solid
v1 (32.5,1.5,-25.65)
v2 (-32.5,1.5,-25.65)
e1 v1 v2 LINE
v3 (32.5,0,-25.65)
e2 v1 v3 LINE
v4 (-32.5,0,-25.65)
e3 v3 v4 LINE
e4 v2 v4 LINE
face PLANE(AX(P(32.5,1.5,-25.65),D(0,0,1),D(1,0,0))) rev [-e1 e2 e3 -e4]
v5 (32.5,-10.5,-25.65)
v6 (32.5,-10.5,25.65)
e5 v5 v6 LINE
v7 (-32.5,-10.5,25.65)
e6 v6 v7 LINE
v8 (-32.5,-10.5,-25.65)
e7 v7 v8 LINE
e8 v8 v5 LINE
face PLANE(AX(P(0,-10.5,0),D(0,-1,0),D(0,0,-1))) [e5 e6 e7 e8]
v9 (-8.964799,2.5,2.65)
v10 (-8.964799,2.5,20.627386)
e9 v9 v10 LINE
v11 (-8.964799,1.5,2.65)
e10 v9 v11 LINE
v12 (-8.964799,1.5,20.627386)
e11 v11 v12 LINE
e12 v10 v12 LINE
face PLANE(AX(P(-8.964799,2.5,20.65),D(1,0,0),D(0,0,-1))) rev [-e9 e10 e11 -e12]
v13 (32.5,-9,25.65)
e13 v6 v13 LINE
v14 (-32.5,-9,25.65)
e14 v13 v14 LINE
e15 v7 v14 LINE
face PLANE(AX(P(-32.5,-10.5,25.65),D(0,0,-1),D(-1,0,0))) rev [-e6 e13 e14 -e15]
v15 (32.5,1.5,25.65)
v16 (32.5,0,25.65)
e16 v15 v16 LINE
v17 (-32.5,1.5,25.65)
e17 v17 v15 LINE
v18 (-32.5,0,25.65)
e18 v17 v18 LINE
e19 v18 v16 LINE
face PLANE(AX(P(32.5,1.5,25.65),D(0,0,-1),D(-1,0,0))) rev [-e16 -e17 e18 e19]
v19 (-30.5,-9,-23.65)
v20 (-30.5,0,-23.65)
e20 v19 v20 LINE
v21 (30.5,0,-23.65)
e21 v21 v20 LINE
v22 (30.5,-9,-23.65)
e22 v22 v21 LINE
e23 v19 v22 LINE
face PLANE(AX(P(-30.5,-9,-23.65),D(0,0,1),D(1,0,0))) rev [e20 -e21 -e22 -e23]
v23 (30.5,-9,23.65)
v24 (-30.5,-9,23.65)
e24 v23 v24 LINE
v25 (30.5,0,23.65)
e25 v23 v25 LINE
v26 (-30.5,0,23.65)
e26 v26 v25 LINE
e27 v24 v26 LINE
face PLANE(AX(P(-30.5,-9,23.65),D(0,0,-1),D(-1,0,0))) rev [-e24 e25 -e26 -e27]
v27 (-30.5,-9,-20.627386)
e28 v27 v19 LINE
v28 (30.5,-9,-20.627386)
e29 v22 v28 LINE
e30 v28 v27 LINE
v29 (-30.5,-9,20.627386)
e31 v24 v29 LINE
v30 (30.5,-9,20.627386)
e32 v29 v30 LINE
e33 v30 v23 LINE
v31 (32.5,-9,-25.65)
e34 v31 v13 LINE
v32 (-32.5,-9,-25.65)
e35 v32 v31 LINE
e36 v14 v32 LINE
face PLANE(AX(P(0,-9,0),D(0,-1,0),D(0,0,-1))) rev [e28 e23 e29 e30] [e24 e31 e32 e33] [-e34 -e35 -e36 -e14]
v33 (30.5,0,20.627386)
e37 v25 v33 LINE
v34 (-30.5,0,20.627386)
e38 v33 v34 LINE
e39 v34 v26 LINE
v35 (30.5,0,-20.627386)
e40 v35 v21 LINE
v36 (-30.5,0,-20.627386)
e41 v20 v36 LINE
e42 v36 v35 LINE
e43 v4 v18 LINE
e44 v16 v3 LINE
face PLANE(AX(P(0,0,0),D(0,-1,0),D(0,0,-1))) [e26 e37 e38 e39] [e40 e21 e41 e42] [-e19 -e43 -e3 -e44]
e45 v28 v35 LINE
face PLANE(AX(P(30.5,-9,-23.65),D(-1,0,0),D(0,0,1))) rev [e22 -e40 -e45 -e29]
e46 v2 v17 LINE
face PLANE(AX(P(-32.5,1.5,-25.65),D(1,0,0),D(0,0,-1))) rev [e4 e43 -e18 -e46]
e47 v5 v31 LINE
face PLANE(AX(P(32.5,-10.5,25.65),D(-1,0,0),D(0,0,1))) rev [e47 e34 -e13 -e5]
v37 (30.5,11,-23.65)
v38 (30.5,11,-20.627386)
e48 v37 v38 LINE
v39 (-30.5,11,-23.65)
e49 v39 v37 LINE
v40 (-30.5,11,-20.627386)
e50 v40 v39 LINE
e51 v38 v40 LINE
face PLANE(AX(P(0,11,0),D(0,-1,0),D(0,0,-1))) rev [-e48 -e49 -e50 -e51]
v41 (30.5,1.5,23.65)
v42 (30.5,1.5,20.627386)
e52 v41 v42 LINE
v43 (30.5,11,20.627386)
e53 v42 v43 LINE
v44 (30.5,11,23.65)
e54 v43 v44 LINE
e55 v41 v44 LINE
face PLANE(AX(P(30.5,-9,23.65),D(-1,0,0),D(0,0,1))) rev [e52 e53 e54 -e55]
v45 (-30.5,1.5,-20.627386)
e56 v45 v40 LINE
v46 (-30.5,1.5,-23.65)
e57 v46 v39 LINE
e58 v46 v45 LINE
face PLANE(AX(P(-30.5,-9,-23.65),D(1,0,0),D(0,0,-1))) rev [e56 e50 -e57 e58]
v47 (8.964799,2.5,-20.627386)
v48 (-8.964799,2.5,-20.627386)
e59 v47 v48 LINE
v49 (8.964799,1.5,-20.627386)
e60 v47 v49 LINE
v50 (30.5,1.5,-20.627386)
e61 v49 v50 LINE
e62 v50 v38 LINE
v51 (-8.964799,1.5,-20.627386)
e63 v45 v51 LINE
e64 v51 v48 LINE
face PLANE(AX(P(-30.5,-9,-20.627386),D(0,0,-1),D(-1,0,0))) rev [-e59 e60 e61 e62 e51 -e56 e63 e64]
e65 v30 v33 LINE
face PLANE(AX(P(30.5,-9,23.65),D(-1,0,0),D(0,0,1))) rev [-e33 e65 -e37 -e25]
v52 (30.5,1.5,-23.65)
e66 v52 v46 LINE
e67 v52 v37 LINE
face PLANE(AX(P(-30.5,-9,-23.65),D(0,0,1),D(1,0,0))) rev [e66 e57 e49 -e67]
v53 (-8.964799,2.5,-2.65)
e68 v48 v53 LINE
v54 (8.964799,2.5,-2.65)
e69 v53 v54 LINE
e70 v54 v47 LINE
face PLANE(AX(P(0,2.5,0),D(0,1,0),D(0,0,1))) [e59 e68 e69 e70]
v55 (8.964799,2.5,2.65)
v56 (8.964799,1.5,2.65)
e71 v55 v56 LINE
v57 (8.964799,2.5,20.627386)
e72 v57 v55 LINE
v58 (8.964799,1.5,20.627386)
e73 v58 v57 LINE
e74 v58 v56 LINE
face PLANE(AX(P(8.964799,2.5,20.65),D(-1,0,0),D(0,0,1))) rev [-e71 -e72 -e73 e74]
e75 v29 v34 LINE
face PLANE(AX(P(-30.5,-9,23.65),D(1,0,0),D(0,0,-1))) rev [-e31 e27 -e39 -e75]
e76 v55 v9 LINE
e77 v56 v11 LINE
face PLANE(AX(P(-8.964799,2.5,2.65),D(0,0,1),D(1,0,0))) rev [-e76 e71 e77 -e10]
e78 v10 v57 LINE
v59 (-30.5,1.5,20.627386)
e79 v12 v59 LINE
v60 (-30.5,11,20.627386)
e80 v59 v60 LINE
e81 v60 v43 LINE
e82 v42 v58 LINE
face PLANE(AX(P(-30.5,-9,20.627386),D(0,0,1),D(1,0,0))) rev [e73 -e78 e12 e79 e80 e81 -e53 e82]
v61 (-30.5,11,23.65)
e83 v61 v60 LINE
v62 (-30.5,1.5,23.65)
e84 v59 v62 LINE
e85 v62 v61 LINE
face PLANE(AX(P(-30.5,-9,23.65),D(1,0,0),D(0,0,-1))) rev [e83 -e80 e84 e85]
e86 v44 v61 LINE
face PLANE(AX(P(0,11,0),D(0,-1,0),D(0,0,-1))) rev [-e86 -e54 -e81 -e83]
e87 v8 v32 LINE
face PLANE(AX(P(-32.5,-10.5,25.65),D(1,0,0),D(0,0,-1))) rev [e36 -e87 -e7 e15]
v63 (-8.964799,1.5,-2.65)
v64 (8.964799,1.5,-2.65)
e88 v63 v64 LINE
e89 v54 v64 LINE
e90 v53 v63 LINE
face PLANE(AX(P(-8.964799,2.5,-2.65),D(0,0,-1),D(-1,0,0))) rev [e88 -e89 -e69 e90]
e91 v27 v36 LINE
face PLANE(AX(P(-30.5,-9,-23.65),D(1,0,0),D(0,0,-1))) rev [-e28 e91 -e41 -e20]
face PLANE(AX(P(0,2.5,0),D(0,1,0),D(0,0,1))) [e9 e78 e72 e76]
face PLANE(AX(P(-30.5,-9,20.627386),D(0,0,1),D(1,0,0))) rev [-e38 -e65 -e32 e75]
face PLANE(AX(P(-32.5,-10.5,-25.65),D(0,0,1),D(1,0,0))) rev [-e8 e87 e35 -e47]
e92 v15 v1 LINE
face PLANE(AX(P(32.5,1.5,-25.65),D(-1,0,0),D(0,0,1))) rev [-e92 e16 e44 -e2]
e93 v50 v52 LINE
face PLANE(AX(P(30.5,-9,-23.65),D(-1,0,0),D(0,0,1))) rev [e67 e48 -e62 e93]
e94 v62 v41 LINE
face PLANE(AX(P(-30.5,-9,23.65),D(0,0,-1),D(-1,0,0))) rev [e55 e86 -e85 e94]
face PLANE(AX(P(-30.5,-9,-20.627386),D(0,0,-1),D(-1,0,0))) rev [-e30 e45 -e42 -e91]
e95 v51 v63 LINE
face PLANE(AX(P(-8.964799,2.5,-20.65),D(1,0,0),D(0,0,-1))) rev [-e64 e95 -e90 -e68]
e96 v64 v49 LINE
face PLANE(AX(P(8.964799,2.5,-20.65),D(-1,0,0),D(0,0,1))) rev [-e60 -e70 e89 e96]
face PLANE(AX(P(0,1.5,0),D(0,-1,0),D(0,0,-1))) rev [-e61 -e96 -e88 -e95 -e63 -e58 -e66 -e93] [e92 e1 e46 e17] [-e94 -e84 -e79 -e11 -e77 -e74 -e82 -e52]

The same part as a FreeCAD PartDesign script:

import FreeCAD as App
import Part
import Sketcher
from FreeCAD import Vector
Q = App.Units.Quantity

doc = App.newDocument("Part")
params = doc.addObject("Spreadsheet::Sheet", "Params")
for row, (alias, value) in enumerate([
    ("sketch1_width", "65 mm"),
    ("sketch1_height", "51.3 mm"),
    ("pad1_length", "1.5 mm"),
    ("sketch2_height", "18 mm"),
    ("pad2_length", "1 mm"),
    ("sketch3_width", "61 mm"),
    ("pad3_length", "9 mm"),
    ("pad3_length2", "11 mm"),
    ("sketch4_width", "65 mm"),
    ("sketch4_height", "51.3 mm"),
    ("pad4_length", "1.5 mm"),
], start=1):
    params.set(f"A{row}", alias)
    params.set(f"B{row}", "=" + value)
    params.setAlias(f"B{row}", alias)

body = doc.addObject("PartDesign::Body", "Body")

# Sketch on XZ plane
sketch1 = doc.addObject("Sketcher::SketchObject", "Sketch")
body.addObject(sketch1)
sketch1.AttachmentSupport = (doc.XZ_Plane, [""])
sketch1.MapMode = "FlatFace"
sketch1.addGeometry([
    Part.LineSegment(Vector(-32.5, -25.65, 0), Vector(-32.5, 25.65, 0)),
    Part.LineSegment(Vector(-32.5, 25.65, 0), Vector(32.5, 25.65, 0)),
    Part.LineSegment(Vector(32.5, 25.65, 0), Vector(32.5, -25.65, 0)),
    Part.LineSegment(Vector(32.5, -25.65, 0), Vector(-32.5, -25.65, 0)),
], False)
sketch1.addConstraint([
    Sketcher.Constraint("Coincident", 0, 2, 1, 1),
    Sketcher.Constraint("Coincident", 1, 2, 2, 1),
    Sketcher.Constraint("Coincident", 2, 2, 3, 1),
    Sketcher.Constraint("Coincident", 3, 2, 0, 1),
    Sketcher.Constraint("Vertical", 0),
    Sketcher.Constraint("Horizontal", 1),
    Sketcher.Constraint("Vertical", 2),
    Sketcher.Constraint("Horizontal", 3),
    Sketcher.Constraint("Symmetric", 0, 2, 2, 2, -1, 1),
    Sketcher.Constraint("DistanceX", 1, 1, 1, 2, Q("65 mm")),
    Sketcher.Constraint("DistanceY", 0, 1, 0, 2, Q("51.3 mm")),
])
sketch1.setExpression("Constraints[9]", "Params.sketch1_width")
sketch1.setExpression("Constraints[10]", "Params.sketch1_height")
pad1 = doc.addObject("PartDesign::Pad", "Pad")
body.addObject(pad1)
pad1.Profile = sketch1
pad1.setExpression("Length", "Params.pad1_length")
pad1.Reversed = True

# Sketch on XZ plane
sketch2 = doc.addObject("Sketcher::SketchObject", "Sketch001")
body.addObject(sketch2)
sketch2.AttachmentSupport = (doc.XZ_Plane, [""])
sketch2.MapMode = "FlatFace"
sketch2.AttachmentOffset = App.Placement(Vector(0, 0, -1.5), App.Rotation())
sketch2.addGeometry([
    Part.LineSegment(Vector(-8.964799, -20.65, 0), Vector(-8.964799, -2.65, 0)),  # 0
    Part.LineSegment(Vector(-8.964799, -2.65, 0), Vector(8.964799, -2.65, 0)),  # 1
    Part.LineSegment(Vector(8.964799, -2.65, 0), Vector(8.964799, -20.65, 0)),  # 2
    Part.LineSegment(Vector(8.964799, -20.65, 0), Vector(-8.964799, -20.65, 0)),  # 3
    Part.LineSegment(Vector(-8.964799, 2.65, 0), Vector(-8.964799, 20.65, 0)),  # 4
    Part.LineSegment(Vector(-8.964799, 20.65, 0), Vector(8.964799, 20.65, 0)),  # 5
    Part.LineSegment(Vector(8.964799, 20.65, 0), Vector(8.964799, 2.65, 0)),  # 6
    Part.LineSegment(Vector(8.964799, 2.65, 0), Vector(-8.964799, 2.65, 0)),  # 7
], False)
sketch2.addConstraint([
    Sketcher.Constraint("Coincident", 0, 2, 1, 1),
    Sketcher.Constraint("Coincident", 1, 2, 2, 1),
    Sketcher.Constraint("Coincident", 2, 2, 3, 1),
    Sketcher.Constraint("Coincident", 3, 2, 0, 1),
    Sketcher.Constraint("Coincident", 4, 2, 5, 1),
    Sketcher.Constraint("Coincident", 5, 2, 6, 1),
    Sketcher.Constraint("Coincident", 6, 2, 7, 1),
    Sketcher.Constraint("Coincident", 7, 2, 4, 1),
    Sketcher.Constraint("Vertical", 0),
    Sketcher.Constraint("Horizontal", 1),
    Sketcher.Constraint("Vertical", 2),
    Sketcher.Constraint("Horizontal", 3),
    Sketcher.Constraint("Vertical", 4),
    Sketcher.Constraint("Horizontal", 5),
    Sketcher.Constraint("Vertical", 6),
    Sketcher.Constraint("Horizontal", 7),
    Sketcher.Constraint("Symmetric", 2, 2, 4, 2, -1, 1),
    Sketcher.Constraint("Symmetric", 0, 2, 6, 2, -1, 1),
    Sketcher.Constraint("Vertical", 3, 2, 4, 2),
    Sketcher.Constraint("DistanceY", 0, 1, 0, 2, Q("18 mm")),
    Sketcher.Constraint("DistanceY", 0, 2, 4, 2, Q("23.3 mm")),
    Sketcher.Constraint("DistanceX", 0, 2, -1, 1, Q("8.964799 mm")),
])
sketch2.setExpression("Constraints[19]", "Params.sketch2_height")
pad2 = doc.addObject("PartDesign::Pad", "Pad001")
body.addObject(pad2)
pad2.Profile = sketch2
pad2.setExpression("Length", "Params.pad2_length")
pad2.Reversed = True

# Sketch on XZ plane
sketch3 = doc.addObject("Sketcher::SketchObject", "Sketch002")
body.addObject(sketch3)
sketch3.AttachmentSupport = (doc.XZ_Plane, [""])
sketch3.MapMode = "FlatFace"
sketch3.addGeometry([
    Part.LineSegment(Vector(-30.5, 23.65, 0), Vector(-30.5, 20.627386, 0)),  # 0
    Part.LineSegment(Vector(-30.5, 20.627386, 0), Vector(30.5, 20.627386, 0)),  # 1
    Part.LineSegment(Vector(30.5, 20.627386, 0), Vector(30.5, 23.65, 0)),  # 2
    Part.LineSegment(Vector(30.5, 23.65, 0), Vector(-30.5, 23.65, 0)),  # 3
    Part.LineSegment(Vector(-30.5, -20.627386, 0), Vector(-30.5, -23.65, 0)),  # 4
    Part.LineSegment(Vector(-30.5, -23.65, 0), Vector(30.5, -23.65, 0)),  # 5
    Part.LineSegment(Vector(30.5, -23.65, 0), Vector(30.5, -20.627386, 0)),  # 6
    Part.LineSegment(Vector(30.5, -20.627386, 0), Vector(-30.5, -20.627386, 0)),  # 7
], False)
sketch3.addConstraint([
    Sketcher.Constraint("Coincident", 0, 2, 1, 1),
    Sketcher.Constraint("Coincident", 1, 2, 2, 1),
    Sketcher.Constraint("Coincident", 2, 2, 3, 1),
    Sketcher.Constraint("Coincident", 3, 2, 0, 1),
    Sketcher.Constraint("Coincident", 4, 2, 5, 1),
    Sketcher.Constraint("Coincident", 5, 2, 6, 1),
    Sketcher.Constraint("Coincident", 6, 2, 7, 1),
    Sketcher.Constraint("Coincident", 7, 2, 4, 1),
    Sketcher.Constraint("Vertical", 0),
    Sketcher.Constraint("Horizontal", 1),
    Sketcher.Constraint("Vertical", 2),
    Sketcher.Constraint("Horizontal", 3),
    Sketcher.Constraint("Vertical", 4),
    Sketcher.Constraint("Horizontal", 5),
    Sketcher.Constraint("Vertical", 6),
    Sketcher.Constraint("Horizontal", 7),
    Sketcher.Constraint("Symmetric", 2, 2, 4, 2, -1, 1),
    Sketcher.Constraint("Symmetric", 0, 2, 6, 2, -1, 1),
    Sketcher.Constraint("Vertical", 3, 2, 4, 2),
    Sketcher.Constraint("DistanceX", 1, 1, 1, 2, Q("61 mm")),
    Sketcher.Constraint("DistanceY", 4, 2, 3, 2, Q("47.3 mm")),
    Sketcher.Constraint("DistanceY", 0, 2, 0, 1, Q("3.022614 mm")),
])
sketch3.setExpression("Constraints[19]", "Params.sketch3_width")
pad3 = doc.addObject("PartDesign::Pad", "Pad002")
body.addObject(pad3)
pad3.Profile = sketch3
pad3.Type = "TwoLengths"
pad3.setExpression("Length", "Params.pad3_length")
pad3.setExpression("Length2", "Params.pad3_length2")

# Sketch on XZ plane
sketch4 = doc.addObject("Sketcher::SketchObject", "Sketch003")
body.addObject(sketch4)
sketch4.AttachmentSupport = (doc.XZ_Plane, [""])
sketch4.MapMode = "FlatFace"
sketch4.AttachmentOffset = App.Placement(Vector(0, 0, 9), App.Rotation())
sketch4.addGeometry([
    Part.LineSegment(Vector(-32.5, 25.65, 0), Vector(-32.5, -25.65, 0)),
    Part.LineSegment(Vector(-32.5, -25.65, 0), Vector(32.5, -25.65, 0)),
    Part.LineSegment(Vector(32.5, -25.65, 0), Vector(32.5, 25.65, 0)),
    Part.LineSegment(Vector(32.5, 25.65, 0), Vector(-32.5, 25.65, 0)),
], False)
sketch4.addConstraint([
    Sketcher.Constraint("Coincident", 0, 2, 1, 1),
    Sketcher.Constraint("Coincident", 1, 2, 2, 1),
    Sketcher.Constraint("Coincident", 2, 2, 3, 1),
    Sketcher.Constraint("Coincident", 3, 2, 0, 1),
    Sketcher.Constraint("Vertical", 0),
    Sketcher.Constraint("Horizontal", 1),
    Sketcher.Constraint("Vertical", 2),
    Sketcher.Constraint("Horizontal", 3),
    Sketcher.Constraint("Symmetric", 0, 2, 2, 2, -1, 1),
    Sketcher.Constraint("DistanceX", 1, 1, 1, 2, Q("65 mm")),
    Sketcher.Constraint("DistanceY", 0, 2, 0, 1, Q("51.3 mm")),
])
sketch4.setExpression("Constraints[9]", "Params.sketch4_width")
sketch4.setExpression("Constraints[10]", "Params.sketch4_height")
pad4 = doc.addObject("PartDesign::Pad", "Pad003")
body.addObject(pad4)
pad4.Profile = sketch4
pad4.setExpression("Length", "Params.pad4_length")

doc.recompute()
